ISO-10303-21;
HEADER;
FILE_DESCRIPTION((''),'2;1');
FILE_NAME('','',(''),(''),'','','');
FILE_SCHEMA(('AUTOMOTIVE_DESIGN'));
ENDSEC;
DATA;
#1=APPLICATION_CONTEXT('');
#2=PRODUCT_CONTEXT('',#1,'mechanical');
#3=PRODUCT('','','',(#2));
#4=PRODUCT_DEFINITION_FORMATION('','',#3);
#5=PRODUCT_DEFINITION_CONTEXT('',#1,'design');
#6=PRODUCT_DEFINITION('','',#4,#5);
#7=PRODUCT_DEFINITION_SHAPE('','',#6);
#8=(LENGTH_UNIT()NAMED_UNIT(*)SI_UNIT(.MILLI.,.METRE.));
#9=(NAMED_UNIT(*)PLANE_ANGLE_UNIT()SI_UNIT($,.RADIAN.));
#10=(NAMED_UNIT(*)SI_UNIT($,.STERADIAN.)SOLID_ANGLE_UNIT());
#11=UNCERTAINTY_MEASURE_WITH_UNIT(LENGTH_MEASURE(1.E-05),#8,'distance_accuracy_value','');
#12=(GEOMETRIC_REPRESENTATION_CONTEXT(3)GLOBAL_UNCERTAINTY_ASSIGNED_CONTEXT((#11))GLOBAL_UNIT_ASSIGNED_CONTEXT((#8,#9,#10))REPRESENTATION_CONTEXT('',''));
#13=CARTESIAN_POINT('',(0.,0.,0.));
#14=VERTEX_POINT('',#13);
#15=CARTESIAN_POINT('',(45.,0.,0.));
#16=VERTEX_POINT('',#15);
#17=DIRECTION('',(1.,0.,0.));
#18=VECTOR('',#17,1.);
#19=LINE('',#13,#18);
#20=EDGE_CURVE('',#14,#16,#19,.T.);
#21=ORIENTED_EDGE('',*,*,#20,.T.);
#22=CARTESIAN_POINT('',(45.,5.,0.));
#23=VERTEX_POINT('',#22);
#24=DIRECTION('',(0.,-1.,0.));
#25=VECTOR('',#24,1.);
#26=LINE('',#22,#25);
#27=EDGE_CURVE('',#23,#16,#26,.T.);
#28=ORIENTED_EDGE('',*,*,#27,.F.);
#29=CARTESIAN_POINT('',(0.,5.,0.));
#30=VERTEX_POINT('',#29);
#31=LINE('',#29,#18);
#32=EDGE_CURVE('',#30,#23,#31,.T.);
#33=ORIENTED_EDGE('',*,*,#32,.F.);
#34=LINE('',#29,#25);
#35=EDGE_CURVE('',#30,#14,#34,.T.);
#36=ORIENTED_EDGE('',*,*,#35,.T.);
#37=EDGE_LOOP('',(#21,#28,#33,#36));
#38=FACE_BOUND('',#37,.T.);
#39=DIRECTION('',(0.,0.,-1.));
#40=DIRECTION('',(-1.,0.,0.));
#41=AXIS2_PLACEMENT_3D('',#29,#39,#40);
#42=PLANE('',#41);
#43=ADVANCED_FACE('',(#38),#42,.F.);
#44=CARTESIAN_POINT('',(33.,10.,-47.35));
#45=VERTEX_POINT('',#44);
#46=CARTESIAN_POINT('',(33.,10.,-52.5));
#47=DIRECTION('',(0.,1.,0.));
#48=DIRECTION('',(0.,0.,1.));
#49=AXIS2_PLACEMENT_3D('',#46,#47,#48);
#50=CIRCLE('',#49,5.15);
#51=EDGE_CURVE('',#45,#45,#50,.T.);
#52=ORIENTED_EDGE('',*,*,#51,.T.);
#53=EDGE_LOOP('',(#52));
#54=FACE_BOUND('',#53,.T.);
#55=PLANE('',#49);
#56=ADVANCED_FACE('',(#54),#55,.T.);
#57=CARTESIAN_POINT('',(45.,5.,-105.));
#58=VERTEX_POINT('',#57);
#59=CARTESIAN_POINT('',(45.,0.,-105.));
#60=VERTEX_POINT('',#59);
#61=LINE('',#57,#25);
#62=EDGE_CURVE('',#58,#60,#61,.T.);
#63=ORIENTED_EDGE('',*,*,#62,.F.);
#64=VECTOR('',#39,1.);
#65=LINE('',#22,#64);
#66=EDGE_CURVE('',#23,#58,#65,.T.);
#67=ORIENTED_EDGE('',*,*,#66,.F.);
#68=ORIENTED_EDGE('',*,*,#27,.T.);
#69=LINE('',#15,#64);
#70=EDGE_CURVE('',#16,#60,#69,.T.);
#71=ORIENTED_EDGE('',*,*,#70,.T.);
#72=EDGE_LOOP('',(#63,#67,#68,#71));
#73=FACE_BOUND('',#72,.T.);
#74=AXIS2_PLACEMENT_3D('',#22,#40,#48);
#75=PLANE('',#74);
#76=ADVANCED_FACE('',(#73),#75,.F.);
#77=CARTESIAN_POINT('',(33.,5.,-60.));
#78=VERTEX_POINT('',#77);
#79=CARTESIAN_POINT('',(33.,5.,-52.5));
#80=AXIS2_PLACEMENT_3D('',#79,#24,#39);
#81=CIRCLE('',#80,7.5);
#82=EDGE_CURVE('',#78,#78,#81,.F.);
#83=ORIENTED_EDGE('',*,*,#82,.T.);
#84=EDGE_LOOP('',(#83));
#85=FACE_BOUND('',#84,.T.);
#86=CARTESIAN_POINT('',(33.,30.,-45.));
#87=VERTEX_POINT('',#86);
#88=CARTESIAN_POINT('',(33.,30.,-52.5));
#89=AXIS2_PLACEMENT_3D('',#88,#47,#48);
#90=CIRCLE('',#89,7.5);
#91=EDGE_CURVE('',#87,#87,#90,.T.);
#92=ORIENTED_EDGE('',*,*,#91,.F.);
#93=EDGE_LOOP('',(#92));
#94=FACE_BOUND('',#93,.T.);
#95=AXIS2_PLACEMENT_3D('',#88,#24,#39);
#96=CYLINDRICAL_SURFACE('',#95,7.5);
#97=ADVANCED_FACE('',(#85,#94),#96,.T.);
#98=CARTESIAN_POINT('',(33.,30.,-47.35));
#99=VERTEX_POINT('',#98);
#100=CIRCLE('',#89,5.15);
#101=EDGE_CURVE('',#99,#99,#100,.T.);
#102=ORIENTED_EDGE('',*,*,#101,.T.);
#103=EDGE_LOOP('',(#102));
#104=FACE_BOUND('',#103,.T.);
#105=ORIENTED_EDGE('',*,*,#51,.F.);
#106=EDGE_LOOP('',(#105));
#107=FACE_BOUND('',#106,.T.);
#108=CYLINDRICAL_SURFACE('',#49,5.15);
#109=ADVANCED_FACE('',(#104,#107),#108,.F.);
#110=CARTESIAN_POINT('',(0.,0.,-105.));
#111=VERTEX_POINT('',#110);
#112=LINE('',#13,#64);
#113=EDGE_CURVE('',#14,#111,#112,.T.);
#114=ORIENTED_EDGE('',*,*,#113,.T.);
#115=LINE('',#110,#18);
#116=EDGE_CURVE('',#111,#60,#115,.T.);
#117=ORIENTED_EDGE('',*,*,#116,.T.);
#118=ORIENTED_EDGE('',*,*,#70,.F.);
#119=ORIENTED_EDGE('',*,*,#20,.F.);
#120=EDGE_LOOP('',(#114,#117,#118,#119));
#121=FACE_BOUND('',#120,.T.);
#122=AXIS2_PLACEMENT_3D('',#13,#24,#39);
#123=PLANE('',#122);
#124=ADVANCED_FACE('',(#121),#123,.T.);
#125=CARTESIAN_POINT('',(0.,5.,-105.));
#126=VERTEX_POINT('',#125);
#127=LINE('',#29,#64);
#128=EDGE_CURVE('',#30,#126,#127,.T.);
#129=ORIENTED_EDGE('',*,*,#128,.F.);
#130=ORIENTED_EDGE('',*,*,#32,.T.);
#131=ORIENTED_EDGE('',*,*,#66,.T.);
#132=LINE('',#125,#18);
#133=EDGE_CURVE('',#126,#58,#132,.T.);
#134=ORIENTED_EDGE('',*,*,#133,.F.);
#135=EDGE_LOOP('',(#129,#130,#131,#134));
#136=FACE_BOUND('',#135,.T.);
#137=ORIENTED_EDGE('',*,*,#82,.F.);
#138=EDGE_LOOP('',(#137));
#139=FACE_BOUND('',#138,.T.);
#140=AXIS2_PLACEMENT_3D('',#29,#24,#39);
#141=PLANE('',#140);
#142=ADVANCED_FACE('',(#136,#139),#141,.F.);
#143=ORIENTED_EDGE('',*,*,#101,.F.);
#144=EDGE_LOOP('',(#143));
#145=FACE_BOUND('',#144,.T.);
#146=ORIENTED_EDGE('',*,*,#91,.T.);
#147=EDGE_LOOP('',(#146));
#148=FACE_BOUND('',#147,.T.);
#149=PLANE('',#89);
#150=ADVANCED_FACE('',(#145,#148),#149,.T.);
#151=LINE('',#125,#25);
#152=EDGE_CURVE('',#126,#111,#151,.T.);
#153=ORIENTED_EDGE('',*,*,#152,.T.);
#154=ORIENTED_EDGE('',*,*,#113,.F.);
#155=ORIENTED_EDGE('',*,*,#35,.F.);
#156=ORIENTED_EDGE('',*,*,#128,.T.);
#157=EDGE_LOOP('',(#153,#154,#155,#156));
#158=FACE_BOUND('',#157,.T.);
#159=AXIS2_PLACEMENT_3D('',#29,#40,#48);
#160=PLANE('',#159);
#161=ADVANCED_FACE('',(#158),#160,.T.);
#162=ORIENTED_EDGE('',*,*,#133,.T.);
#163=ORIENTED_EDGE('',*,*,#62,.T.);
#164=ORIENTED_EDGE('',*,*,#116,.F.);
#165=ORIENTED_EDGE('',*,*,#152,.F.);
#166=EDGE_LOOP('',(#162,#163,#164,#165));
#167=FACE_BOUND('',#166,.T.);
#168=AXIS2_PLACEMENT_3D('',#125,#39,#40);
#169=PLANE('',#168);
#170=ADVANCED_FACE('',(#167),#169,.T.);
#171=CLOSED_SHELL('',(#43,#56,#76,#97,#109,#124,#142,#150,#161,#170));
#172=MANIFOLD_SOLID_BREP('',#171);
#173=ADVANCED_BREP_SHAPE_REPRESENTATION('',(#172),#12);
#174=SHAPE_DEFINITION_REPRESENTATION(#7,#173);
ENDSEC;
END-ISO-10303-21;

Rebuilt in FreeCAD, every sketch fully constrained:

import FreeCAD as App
import Part
import Sketcher
Q = App.Units.Quantity

doc = App.newDocument("Part")
body = doc.addObject("PartDesign::Body", "Body")

# Sketch on XZ plane
sketch1 = body.newObject("Sketcher::SketchObject", "Sketch")
sketch1.AttachmentSupport = (doc.getObject("XZ_Plane"), [""])
sketch1.MapMode = "FlatFace"
sketch1.addGeometry([
    Part.LineSegment(App.Vector(0, -105, 0), App.Vector(0, 0, 0)),
    Part.LineSegment(App.Vector(0, 0, 0), App.Vector(45, 0, 0)),
    Part.LineSegment(App.Vector(45, 0, 0), App.Vector(45, -105, 0)),
    Part.LineSegment(App.Vector(45, -105, 0), App.Vector(0, -105, 0)),
], False)
sketch1.addConstraint([
    Sketcher.Constraint("Coincident", 0, 2, 1, 1),
    Sketcher.Constraint("Coincident", 1, 2, 2, 1),
    Sketcher.Constraint("Coincident", 2, 2, 3, 1),
    Sketcher.Constraint("Coincident", 3, 2, 0, 1),
    Sketcher.Constraint("Vertical", 0),
    Sketcher.Constraint("Horizontal", 1),
    Sketcher.Constraint("Vertical", 2),
    Sketcher.Constraint("Horizontal", 3),
    Sketcher.Constraint("Coincident", 0, 2, -1, 1),
    Sketcher.Constraint("DistanceX", 1, 1, 1, 2, Q("45 mm")),
    Sketcher.Constraint("DistanceY", 0, 1, 0, 2, Q("105 mm")),
])
pad1 = body.newObject("PartDesign::Pad", "Pad")
pad1.Profile = sketch1
pad1.Length = 5
pad1.Reversed = True

# Sketch on XZ plane
sketch2 = body.newObject("Sketcher::SketchObject", "Sketch001")
sketch2.AttachmentSupport = (doc.getObject("XZ_Plane"), [""])
sketch2.MapMode = "FlatFace"
sketch2.AttachmentOffset = App.Placement(App.Vector(0, 0, -5), App.Rotation())
sketch2.addGeometry(Part.Circle(App.Vector(33, -52, 0), App.Vector(0, 0, 1), 8), False)
sketch2.addConstraint([
    Sketcher.Constraint("Diameter", 0, Q("15 mm")),
    Sketcher.Constraint("DistanceX", -1, 1, 0, 3, Q("33 mm")),
    Sketcher.Constraint("DistanceY", 0, 3, -1, 1, Q("52.5 mm")),
])
pad2 = body.newObject("PartDesign::Pad", "Pad001")
pad2.Profile = sketch2
pad2.Length = 25
pad2.Reversed = True

# Sketch on XZ plane
sketch3 = body.newObject("Sketcher::SketchObject", "Sketch002")
sketch3.AttachmentSupport = (doc.getObject("XZ_Plane"), [""])
sketch3.MapMode = "FlatFace"
sketch3.AttachmentOffset = App.Placement(App.Vector(0, 0, -30), App.Rotation())
sketch3.addGeometry(Part.Circle(App.Vector(33, -52, 0), App.Vector(0, 0, 1), 5), False)
sketch3.addConstraint([
    Sketcher.Constraint("Diameter", 0, Q("10.3 mm")),
    Sketcher.Constraint("DistanceX", -1, 1, 0, 3, Q("33 mm")),
    Sketcher.Constraint("DistanceY", 0, 3, -1, 1, Q("52.5 mm")),
])
pocket1 = body.newObject("PartDesign::Pocket", "Pocket")
pocket1.Profile = sketch3
pocket1.Length = 20
pocket1.Reversed = True

doc.recompute()
